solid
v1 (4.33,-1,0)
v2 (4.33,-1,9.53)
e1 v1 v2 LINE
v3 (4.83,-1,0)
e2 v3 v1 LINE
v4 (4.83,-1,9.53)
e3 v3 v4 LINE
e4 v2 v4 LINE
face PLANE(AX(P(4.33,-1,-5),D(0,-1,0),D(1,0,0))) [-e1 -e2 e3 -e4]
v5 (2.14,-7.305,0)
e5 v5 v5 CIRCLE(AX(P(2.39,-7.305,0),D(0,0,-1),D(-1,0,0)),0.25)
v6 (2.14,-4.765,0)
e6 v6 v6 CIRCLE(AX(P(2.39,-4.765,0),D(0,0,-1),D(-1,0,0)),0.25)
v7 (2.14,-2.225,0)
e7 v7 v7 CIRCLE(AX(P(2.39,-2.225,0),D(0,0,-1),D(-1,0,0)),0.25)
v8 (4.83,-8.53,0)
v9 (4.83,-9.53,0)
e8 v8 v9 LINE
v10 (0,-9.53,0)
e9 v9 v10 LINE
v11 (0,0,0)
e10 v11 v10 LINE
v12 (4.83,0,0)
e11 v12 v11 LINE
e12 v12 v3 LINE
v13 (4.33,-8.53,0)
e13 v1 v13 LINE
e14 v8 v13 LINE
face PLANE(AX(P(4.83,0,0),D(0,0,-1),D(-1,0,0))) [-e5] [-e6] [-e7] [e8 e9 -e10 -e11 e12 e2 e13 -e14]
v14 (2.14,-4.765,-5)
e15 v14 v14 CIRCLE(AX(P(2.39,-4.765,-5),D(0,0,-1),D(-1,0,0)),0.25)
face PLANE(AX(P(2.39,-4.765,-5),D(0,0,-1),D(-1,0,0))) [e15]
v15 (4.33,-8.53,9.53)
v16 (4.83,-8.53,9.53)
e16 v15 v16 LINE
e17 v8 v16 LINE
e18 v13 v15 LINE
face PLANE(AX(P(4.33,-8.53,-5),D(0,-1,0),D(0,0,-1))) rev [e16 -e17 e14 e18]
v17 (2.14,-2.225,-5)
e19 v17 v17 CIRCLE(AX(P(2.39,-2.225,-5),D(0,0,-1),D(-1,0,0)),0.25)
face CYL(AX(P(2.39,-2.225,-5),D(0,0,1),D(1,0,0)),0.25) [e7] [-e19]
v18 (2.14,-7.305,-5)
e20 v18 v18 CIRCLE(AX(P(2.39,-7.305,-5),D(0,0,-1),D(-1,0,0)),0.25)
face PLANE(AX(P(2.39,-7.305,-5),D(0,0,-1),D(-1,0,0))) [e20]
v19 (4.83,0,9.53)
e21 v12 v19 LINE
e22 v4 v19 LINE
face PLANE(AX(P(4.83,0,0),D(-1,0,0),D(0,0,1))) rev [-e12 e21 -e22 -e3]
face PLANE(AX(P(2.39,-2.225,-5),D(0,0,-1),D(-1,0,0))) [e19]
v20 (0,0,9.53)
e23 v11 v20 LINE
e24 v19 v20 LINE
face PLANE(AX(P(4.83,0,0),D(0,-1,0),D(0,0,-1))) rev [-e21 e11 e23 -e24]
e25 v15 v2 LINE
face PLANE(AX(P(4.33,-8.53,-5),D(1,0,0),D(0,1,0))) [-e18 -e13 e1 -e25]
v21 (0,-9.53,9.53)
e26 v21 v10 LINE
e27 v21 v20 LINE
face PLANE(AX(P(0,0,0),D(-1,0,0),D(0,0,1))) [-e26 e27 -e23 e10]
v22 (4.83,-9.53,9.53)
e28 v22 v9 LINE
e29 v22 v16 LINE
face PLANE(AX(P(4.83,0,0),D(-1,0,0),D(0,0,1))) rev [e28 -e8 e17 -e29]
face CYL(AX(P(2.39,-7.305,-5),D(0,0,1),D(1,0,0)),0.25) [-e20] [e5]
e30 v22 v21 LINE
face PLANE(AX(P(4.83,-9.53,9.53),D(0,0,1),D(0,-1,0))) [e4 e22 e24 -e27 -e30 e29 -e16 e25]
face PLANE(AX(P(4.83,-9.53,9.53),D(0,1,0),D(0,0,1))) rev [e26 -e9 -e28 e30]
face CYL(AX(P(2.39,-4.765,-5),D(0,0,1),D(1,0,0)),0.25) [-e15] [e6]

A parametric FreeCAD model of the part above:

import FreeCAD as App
import Part
import Sketcher
from FreeCAD import Vector


def add_polygon(sketch, points):
    """Adds a closed chain of lines whose ends are joined by coincident constraints."""
    first, n = sketch.GeometryCount, len(points)
    for a, b in zip(points, points[1:] + points[:1]):
        sketch.addGeometry(Part.LineSegment(App.Vector(*a, 0), App.Vector(*b, 0)), False)
    for i in range(n):
        sketch.addConstraint(Sketcher.Constraint("Coincident", first + i, 2, first + (i + 1) % n, 1))

doc = App.newDocument("Part")
params = doc.addObject("Spreadsheet::Sheet", "Params")
for row, (alias, value) in enumerate([
    ("sketch1_width", "9.53 mm"),
    ("pad1_length", "4.83 mm"),
    ("sketch2_diameter", "0.5 mm"),
    ("pad2_length", "5 mm"),
    ("sketch3_width", "0.5 mm"),
    ("sketch3_height", "7.53 mm"),
], start=1):
    params.set(f"A{row}", alias)
    params.set(f"B{row}", "=" + value)
    params.setAlias(f"B{row}", alias)

body = doc.addObject("PartDesign::Body", "Body")

sketch1 = body.newObject("Sketcher::SketchObject", "Sketch")
sketch1.AttachmentSupport = (doc.getObject("YZ_Plane"), [""])
sketch1.MapMode = "FlatFace"
add_polygon(sketch1, [(-9.53, 0), (0, 0), (0, 9.53), (-9.53, 9.53)])
sketch1.addConstraint([
    Sketcher.Constraint("Horizontal", 0),
    Sketcher.Constraint("Vertical", 1),
    Sketcher.Constraint("Horizontal", 2),
    Sketcher.Constraint("Vertical", 3),
    Sketcher.Constraint("Coincident", 0, 2, -1, 1),
    Sketcher.Constraint("Equal", 2, 1),
    Sketcher.Constraint("DistanceX", 0, 1, 0, 2, 9.53),
])
sketch1.setExpression("Constraints[10]", "Params.sketch1_width")
pad1 = body.newObject("PartDesign::Pad", "Pad")
pad1.Profile = sketch1
pad1.setExpression("Length", "Params.pad1_length")

sketch2 = body.newObject("Sketcher::SketchObject", "Sketch001")
sketch2.AttachmentSupport = (doc.getObject("XY_Plane"), [""])
sketch2.MapMode = "FlatFace"
sketch2.addGeometry([
    Part.Circle(Vector(2.39, -2.225, 0), Vector(0, 0, 1), 0.25),
    Part.Circle(Vector(2.39, -4.765, 0), Vector(0, 0, 1), 0.25),
    Part.Circle(Vector(2.39, -7.305, 0), Vector(0, 0, 1), 0.25),
], False)
sketch2.addConstraint([
    Sketcher.Constraint("Equal", 0, 1),
    Sketcher.Constraint("Equal", 1, 2),
    Sketcher.Constraint("Vertical", 0, 3, 1, 3),
    Sketcher.Constraint("Vertical", 1, 3, 2, 3),
    Sketcher.Constraint("Diameter", 0, 0.5),
    Sketcher.Constraint("DistanceX", -1, 1, 0, 3, 2.39),
    Sketcher.Constraint("DistanceY", 1, 3, 0, 3, 2.54),
    Sketcher.Constraint("DistanceY", 2, 3, 1, 3, 2.54),
    Sketcher.Constraint("DistanceY", 0, 3, -1, 1, 2.225),
])
sketch2.setExpression("Constraints[4]", "Params.sketch2_diameter")
pad2 = body.newObject("PartDesign::Pad", "Pad001")
pad2.Profile = sketch2
pad2.setExpression("Length", "Params.pad2_length")
pad2.Reversed = True

sketch3 = body.newObject("Sketcher::SketchObject", "Sketch002")
sketch3.AttachmentSupport = (doc.getObject("XY_Plane"), [""])
sketch3.MapMode = "FlatFace"
sketch3.AttachmentOffset = App.Placement(Vector(0, 0, 9.53), App.Rotation())
add_polygon(sketch3, [(4.33, -1), (4.33, -8.53), (4.83, -8.53), (4.83, -1)])
sketch3.addConstraint([
    Sketcher.Constraint("Vertical", 0),
    Sketcher.Constraint("Horizontal", 1),
    Sketcher.Constraint("Vertical", 2),
    Sketcher.Constraint("Horizontal", 3),
    Sketcher.Constraint("DistanceX", 1, 1, 1, 2, 0.5),
    Sketcher.Constraint("DistanceY", 2, 2, -1, 1, 1.0),
    Sketcher.Constraint("DistanceY", 0, 2, 0, 1, 7.53),
    Sketcher.Constraint("DistanceX", -1, 1, 0, 2, 4.33),
])
sketch3.setExpression("Constraints[8]", "Params.sketch3_width")
sketch3.setExpression("Constraints[10]", "Params.sketch3_height")
pocket1 = body.newObject("PartDesign::Pocket", "Pocket")
pocket1.Profile = sketch3
pocket1.Type = "ThroughAll"

doc.recompute()
